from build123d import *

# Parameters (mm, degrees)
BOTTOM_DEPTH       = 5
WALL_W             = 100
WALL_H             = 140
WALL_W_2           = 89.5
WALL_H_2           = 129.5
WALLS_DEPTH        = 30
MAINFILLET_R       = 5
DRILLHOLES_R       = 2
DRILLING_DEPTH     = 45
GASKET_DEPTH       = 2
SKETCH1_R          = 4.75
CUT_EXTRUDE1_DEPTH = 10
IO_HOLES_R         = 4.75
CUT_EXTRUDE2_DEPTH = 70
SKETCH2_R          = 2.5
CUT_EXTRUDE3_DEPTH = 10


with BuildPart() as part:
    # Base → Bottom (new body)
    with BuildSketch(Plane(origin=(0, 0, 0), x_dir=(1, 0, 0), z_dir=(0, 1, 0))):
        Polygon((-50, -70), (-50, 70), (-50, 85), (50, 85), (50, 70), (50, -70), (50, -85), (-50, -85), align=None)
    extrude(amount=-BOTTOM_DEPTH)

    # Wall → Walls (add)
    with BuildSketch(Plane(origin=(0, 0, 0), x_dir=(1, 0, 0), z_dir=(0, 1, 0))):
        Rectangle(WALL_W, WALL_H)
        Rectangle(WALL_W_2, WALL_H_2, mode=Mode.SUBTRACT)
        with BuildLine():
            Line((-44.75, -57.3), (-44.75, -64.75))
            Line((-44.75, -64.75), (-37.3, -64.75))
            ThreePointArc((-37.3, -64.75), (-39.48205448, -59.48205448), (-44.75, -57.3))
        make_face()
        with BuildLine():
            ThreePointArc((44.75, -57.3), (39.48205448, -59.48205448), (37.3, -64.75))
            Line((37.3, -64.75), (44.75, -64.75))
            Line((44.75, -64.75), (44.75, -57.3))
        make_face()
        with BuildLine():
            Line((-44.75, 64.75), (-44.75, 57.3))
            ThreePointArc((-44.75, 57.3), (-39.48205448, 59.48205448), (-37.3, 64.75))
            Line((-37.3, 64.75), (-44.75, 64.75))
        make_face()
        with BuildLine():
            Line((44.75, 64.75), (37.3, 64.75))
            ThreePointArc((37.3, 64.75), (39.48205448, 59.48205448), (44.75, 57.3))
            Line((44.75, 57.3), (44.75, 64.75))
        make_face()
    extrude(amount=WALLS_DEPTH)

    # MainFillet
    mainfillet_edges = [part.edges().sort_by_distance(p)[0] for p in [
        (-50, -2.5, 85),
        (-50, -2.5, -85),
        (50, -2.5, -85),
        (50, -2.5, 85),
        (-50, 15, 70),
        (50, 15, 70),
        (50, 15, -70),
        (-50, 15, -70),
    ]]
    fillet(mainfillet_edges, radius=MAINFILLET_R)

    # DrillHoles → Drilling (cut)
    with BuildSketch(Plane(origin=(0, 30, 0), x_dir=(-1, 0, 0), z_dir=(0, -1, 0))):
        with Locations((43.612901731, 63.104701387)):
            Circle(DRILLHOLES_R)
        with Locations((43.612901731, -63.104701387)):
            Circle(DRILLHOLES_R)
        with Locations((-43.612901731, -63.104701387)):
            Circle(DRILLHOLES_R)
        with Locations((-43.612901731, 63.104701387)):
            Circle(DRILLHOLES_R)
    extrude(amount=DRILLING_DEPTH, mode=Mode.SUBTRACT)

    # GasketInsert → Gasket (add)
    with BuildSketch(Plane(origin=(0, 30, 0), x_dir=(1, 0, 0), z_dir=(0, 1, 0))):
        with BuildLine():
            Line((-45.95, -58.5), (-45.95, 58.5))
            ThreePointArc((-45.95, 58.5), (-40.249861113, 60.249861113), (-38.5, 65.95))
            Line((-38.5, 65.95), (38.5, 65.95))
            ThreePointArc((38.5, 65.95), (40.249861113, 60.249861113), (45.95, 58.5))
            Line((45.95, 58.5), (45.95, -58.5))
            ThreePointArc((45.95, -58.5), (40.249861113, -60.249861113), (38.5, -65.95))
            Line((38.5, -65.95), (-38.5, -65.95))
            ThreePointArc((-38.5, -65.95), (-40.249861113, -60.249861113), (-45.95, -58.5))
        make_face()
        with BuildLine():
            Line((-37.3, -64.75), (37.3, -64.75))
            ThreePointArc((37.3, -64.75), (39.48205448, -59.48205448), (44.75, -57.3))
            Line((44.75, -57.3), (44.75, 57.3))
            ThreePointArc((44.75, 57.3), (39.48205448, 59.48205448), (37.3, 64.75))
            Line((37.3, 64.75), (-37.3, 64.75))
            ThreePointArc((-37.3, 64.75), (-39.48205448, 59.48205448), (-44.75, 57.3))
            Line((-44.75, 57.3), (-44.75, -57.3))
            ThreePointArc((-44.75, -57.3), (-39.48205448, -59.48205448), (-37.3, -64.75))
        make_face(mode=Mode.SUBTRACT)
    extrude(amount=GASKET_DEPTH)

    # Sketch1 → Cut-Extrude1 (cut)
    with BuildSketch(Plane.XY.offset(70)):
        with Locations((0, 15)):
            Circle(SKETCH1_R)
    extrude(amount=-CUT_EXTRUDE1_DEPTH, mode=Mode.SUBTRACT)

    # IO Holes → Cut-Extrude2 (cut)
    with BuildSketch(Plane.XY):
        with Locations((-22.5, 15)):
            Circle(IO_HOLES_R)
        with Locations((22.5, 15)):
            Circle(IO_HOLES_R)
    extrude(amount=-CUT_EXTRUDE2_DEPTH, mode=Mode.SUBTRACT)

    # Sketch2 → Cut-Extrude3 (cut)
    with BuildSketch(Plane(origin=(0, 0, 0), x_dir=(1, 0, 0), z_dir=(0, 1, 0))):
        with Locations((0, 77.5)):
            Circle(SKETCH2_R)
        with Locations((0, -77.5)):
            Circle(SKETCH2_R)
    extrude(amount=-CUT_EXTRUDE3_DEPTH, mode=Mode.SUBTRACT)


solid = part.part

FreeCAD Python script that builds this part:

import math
import FreeCAD as App
import Part
import Sketcher

V = App.Vector


def edges_at(feature, points):
    """Names of the edges that pass closest to the given points."""
    edges = feature.Shape.Edges
    near = lambda p: min(range(len(edges)), key=lambda i: edges[i].distToShape(Part.Vertex(*p))[0])
    return sorted({f"Edge{near(p) + 1}" for p in points})

doc = App.newDocument("Part")
body = doc.addObject("PartDesign::Body", "Body")

# Sketch on XZ plane
sketch1 = body.newObject("Sketcher::SketchObject", "Sketch")
sketch1.AttachmentSupport = (doc.getObject("XZ_Plane"), [""])
sketch1.MapMode = "FlatFace"
sketch1.addGeometry(Part.LineSegment(V(-50, -85, 0), V(-50, 85, 0)), False)
sketch1.addGeometry(Part.LineSegment(V(-50, 85, 0), V(50, 85, 0)), False)
sketch1.addGeometry(Part.LineSegment(V(50, 85, 0), V(50, -85, 0)), False)
sketch1.addGeometry(Part.LineSegment(V(50, -85, 0), V(-50, -85, 0)), False)
sketch1.addConstraint(Sketcher.Constraint("Coincident", 0, 2, 1, 1))
sketch1.addConstraint(Sketcher.Constraint("Coincident", 1, 2, 2, 1))
sketch1.addConstraint(Sketcher.Constraint("Coincident", 2, 2, 3, 1))
sketch1.addConstraint(Sketcher.Constraint("Coincident", 3, 2, 0, 1))
sketch1.addConstraint(Sketcher.Constraint("Vertical", 0))
sketch1.addConstraint(Sketcher.Constraint("Horizontal", 1))
sketch1.addConstraint(Sketcher.Constraint("Vertical", 2))
sketch1.addConstraint(Sketcher.Constraint("Horizontal", 3))
sketch1.addConstraint(Sketcher.Constraint("Symmetric", 0, 2, 2, 2, -1, 1))
sketch1.addConstraint(Sketcher.Constraint("DistanceX", 1, 1, 1, 2, 100.0))
sketch1.addConstraint(Sketcher.Constraint("DistanceY", 0, 1, 0, 2, 170.0))
pad1 = body.newObject("PartDesign::Pad", "Pad")
pad1.Profile = sketch1
pad1.Length = 5

# Sketch on XZ plane
sketch2 = body.newObject("Sketcher::SketchObject", "Sketch001")
sketch2.AttachmentSupport = (doc.getObject("XZ_Plane"), [""])
sketch2.MapMode = "FlatFace"
sketch2.addGeometry(Part.LineSegment(V(-50, -70, 0), V(-50, 70, 0)), False)
sketch2.addGeometry(Part.LineSegment(V(-50, 70, 0), V(50, 70, 0)), False)
sketch2.addGeometry(Part.LineSegment(V(50, 70, 0), V(50, -70, 0)), False)
sketch2.addGeometry(Part.LineSegment(V(50, -70, 0), V(-50, -70, 0)), False)
sketch2.addGeometry(Part.LineSegment(V(37, 65, 0), V(-37, 65, 0)), False)
sketch2.addGeometry(Part.ArcOfCircle(Part.Circle(V(-45, 65, 0), V(0, 0, 1), 7), math.radians(-90), math.radians(0)), False)
sketch2.addGeometry(Part.LineSegment(V(-45, 57, 0), V(-45, -57, 0)), False)
sketch2.addGeometry(Part.ArcOfCircle(Part.Circle(V(-45, -65, 0), V(0, 0, 1), 7), math.radians(0), math.radians(90)), False)
sketch2.addGeometry(Part.LineSegment(V(-37, -65, 0), V(37, -65, 0)), False)
sketch2.addGeometry(Part.ArcOfCircle(Part.Circle(V(45, -65, 0), V(0, 0, 1), 7), math.radians(90), math.radians(180)), False)
sketch2.addGeometry(Part.LineSegment(V(45, -57, 0), V(45, 57, 0)), False)
sketch2.addGeometry(Part.ArcOfCircle(Part.Circle(V(45, 65, 0), V(0, 0, 1), 7), math.radians(180), math.radians(270)), False)
sketch2.addConstraint(Sketcher.Constraint("Coincident", 0, 2, 1, 1))
sketch2.addConstraint(Sketcher.Constraint("Coincident", 1, 2, 2, 1))
sketch2.addConstraint(Sketcher.Constraint("Coincident", 2, 2, 3, 1))
sketch2.addConstraint(Sketcher.Constraint("Coincident", 3, 2, 0, 1))
sketch2.addConstraint(Sketcher.Constraint("Coincident", 4, 2, 5, 2))
sketch2.addConstraint(Sketcher.Constraint("Coincident", 5, 1, 6, 1))
sketch2.addConstraint(Sketcher.Constraint("Coincident", 6, 2, 7, 2))
sketch2.addConstraint(Sketcher.Constraint("Coincident", 7, 1, 8, 1))
sketch2.addConstraint(Sketcher.Constraint("Coincident", 8, 2, 9, 2))
sketch2.addConstraint(Sketcher.Constraint("Coincident", 9, 1, 10, 1))
sketch2.addConstraint(Sketcher.Constraint("Coincident", 10, 2, 11, 2))
sketch2.addConstraint(Sketcher.Constraint("Coincident", 11, 1, 4, 1))
sketch2.addConstraint(Sketcher.Constraint("Vertical", 0))
sketch2.addConstraint(Sketcher.Constraint("Horizontal", 1))
sketch2.addConstraint(Sketcher.Constraint("Vertical", 2))
sketch2.addConstraint(Sketcher.Constraint("Horizontal", 3))
sketch2.addConstraint(Sketcher.Constraint("Horizontal", 4))
sketch2.addConstraint(Sketcher.Constraint("Vertical", 6))
sketch2.addConstraint(Sketcher.Constraint("Horizontal", 8))
sketch2.addConstraint(Sketcher.Constraint("Vertical", 10))
sketch2.addConstraint(Sketcher.Constraint("Equal", 5, 7))
sketch2.addConstraint(Sketcher.Constraint("Equal", 7, 9))
sketch2.addConstraint(Sketcher.Constraint("Equal", 9, 11))
sketch2.addConstraint(Sketcher.Constraint("Symmetric", 5, 3, 9, 3, -1, 1))
sketch2.addConstraint(Sketcher.Constraint("Symmetric", 7, 3, 11, 3, -1, 1))
sketch2.addConstraint(Sketcher.Constraint("Symmetric", 0, 2, 2, 2, -1, 1))
sketch2.addConstraint(Sketcher.Constraint("Symmetric", 7, 3, 9, 3, -2))
sketch2.addConstraint(Sketcher.Constraint("Horizontal", 11, 3, 4, 2))
sketch2.addConstraint(Sketcher.Constraint("Horizontal", 9, 3, 7, 1))
sketch2.addConstraint(Sketcher.Constraint("Vertical", 7, 3, 5, 1))
sketch2.addConstraint(Sketcher.Constraint("Vertical", 11, 3, 9, 1))
sketch2.addConstraint(Sketcher.Constraint("DistanceX", 1, 1, 1, 2, 100.0))
sketch2.addConstraint(Sketcher.Constraint("DistanceY", 0, 1, 0, 2, 140.0))
sketch2.addConstraint(Sketcher.Constraint("Radius", 5, 7.45))
sketch2.addConstraint(Sketcher.Constraint("DistanceX", 4, 2, 4, 1, 74.6))
sketch2.addConstraint(Sketcher.Constraint("DistanceY", 6, 2, 6, 1, 114.6))
pad2 = body.newObject("PartDesign::Pad", "Pad001")
pad2.Profile = sketch2
pad2.Length = 30
pad2.Reversed = True
doc.recompute()

fillet = body.newObject("PartDesign::Fillet", "Fillet")
fillet.Base = (pad2, edges_at(pad2, [
    (-50, -2.5, 85),
    (-50, -2.5, -85),
    (50, -2.5, -85),
    (50, -2.5, 85),
    (-50, 15, 70),
    (50, 15, 70),
    (50, 15, -70),
    (-50, 15, -70),
]))
fillet.Radius = 5

# Sketch on XZ plane
sketch3 = body.newObject("Sketcher::SketchObject", "Sketch002")
sketch3.AttachmentSupport = (doc.getObject("XZ_Plane"), [""])
sketch3.MapMode = "FlatFace"
sketch3.AttachmentOffset = App.Placement(V(0, 0, -30), App.Rotation())
sketch3.addGeometry(Part.Circle(V(-43.6, -63.1, 0), V(0, 0, 1), 2), False)
sketch3.addGeometry(Part.Circle(V(-43.6, 63.1, 0), V(0, 0, 1), 2), False)
sketch3.addGeometry(Part.Circle(V(43.6, 63.1, 0), V(0, 0, 1), 2), False)
sketch3.addGeometry(Part.Circle(V(43.6, -63.1, 0), V(0, 0, 1), 2), False)
sketch3.addConstraint(Sketcher.Constraint("Equal", 0, 1))
sketch3.addConstraint(Sketcher.Constraint("Equal", 1, 2))
sketch3.addConstraint(Sketcher.Constraint("Equal", 2, 3))
sketch3.addConstraint(Sketcher.Constraint("Symmetric", 0, 3, 2, 3, -1, 1))
sketch3.addConstraint(Sketcher.Constraint("Symmetric", 1, 3, 3, 3, -1, 1))
sketch3.addConstraint(Sketcher.Constraint("Symmetric", 1, 3, 2, 3, -2))
sketch3.addConstraint(Sketcher.Constraint("Diameter", 0, 4.0))
sketch3.addConstraint(Sketcher.Constraint("DistanceX", 0, 3, -1, 1, 43.612902))
sketch3.addConstraint(Sketcher.Constraint("DistanceY", 0, 3, -1, 1, 63.104701))
pocket1 = body.newObject("PartDesign::Pocket", "Pocket")
pocket1.Profile = sketch3
pocket1.Length = 45
pocket1.Reversed = True

# Sketch on XZ plane
sketch4 = body.newObject("Sketcher::SketchObject", "Sketch003")
sketch4.AttachmentSupport = (doc.getObject("XZ_Plane"), [""])
sketch4.MapMode = "FlatFace"
sketch4.AttachmentOffset = App.Placement(V(0, 0, -30), App.Rotation())
sketch4.addGeometry(Part.LineSegment(V(-46, -58, 0), V(-46, 58, 0)), False)
sketch4.addGeometry(Part.ArcOfCircle(Part.Circle(V(-45, 65, 0), V(0, 0, 1), 6), math.radians(-101), math.radians(11)), False)
sketch4.addGeometry(Part.LineSegment(V(-38, 66, 0), V(38, 66, 0)), False)
sketch4.addGeometry(Part.ArcOfCircle(Part.Circle(V(45, 65, 0), V(0, 0, 1), 6), math.radians(169), math.radians(281)), False)
sketch4.addGeometry(Part.LineSegment(V(46, 58, 0), V(46, -58, 0)), False)
sketch4.addGeometry(Part.ArcOfCircle(Part.Circle(V(45, -65, 0), V(0, 0, 1), 6), math.radians(79), math.radians(191)), False)
sketch4.addGeometry(Part.LineSegment(V(38, -66, 0), V(-38, -66, 0)), False)
sketch4.addGeometry(Part.ArcOfCircle(Part.Circle(V(-45, -65, 0), V(0, 0, 1), 6), math.radians(-11), math.radians(101)), False)
sketch4.addGeometry(Part.ArcOfCircle(Part.Circle(V(-45, 65, 0), V(0, 0, 1), 7), math.radians(-90), math.radians(0)), False)
sketch4.addGeometry(Part.LineSegment(V(-45, 57, 0), V(-45, -57, 0)), False)
sketch4.addGeometry(Part.ArcOfCircle(Part.Circle(V(-45, -65, 0), V(0, 0, 1), 7), math.radians(0), math.radians(90)), False)
sketch4.addGeometry(Part.LineSegment(V(-37, -65, 0), V(37, -65, 0)), False)
sketch4.addGeometry(Part.ArcOfCircle(Part.Circle(V(45, -65, 0), V(0, 0, 1), 7), math.radians(90), math.radians(180)), False)
sketch4.addGeometry(Part.LineSegment(V(45, -57, 0), V(45, 57, 0)), False)
sketch4.addGeometry(Part.ArcOfCircle(Part.Circle(V(45, 65, 0), V(0, 0, 1), 7), math.radians(180), math.radians(270)), False)
sketch4.addGeometry(Part.LineSegment(V(37, 65, 0), V(-37, 65, 0)), False)
sketch4.addConstraint(Sketcher.Constraint("Coincident", 0, 2, 1, 1))
sketch4.addConstraint(Sketcher.Constraint("Coincident", 1, 2, 2, 1))
sketch4.addConstraint(Sketcher.Constraint("Coincident", 2, 2, 3, 1))
sketch4.addConstraint(Sketcher.Constraint("Coincident", 3, 2, 4, 1))
sketch4.addConstraint(Sketcher.Constraint("Coincident", 4, 2, 5, 1))
sketch4.addConstraint(Sketcher.Constraint("Coincident", 5, 2, 6, 1))
sketch4.addConstraint(Sketcher.Constraint("Coincident", 6, 2, 7, 1))
sketch4.addConstraint(Sketcher.Constraint("Coincident", 7, 2, 0, 1))
sketch4.addConstraint(Sketcher.Constraint("Coincident", 8, 1, 9, 1))
sketch4.addConstraint(Sketcher.Constraint("Coincident", 9, 2, 10, 2))
sketch4.addConstraint(Sketcher.Constraint("Coincident", 10, 1, 11, 1))
sketch4.addConstraint(Sketcher.Constraint("Coincident", 11, 2, 12, 2))
sketch4.addConstraint(Sketcher.Constraint("Coincident", 12, 1, 13, 1))
sketch4.addConstraint(Sketcher.Constraint("Coincident", 13, 2, 14, 2))
sketch4.addConstraint(Sketcher.Constraint("Coincident", 14, 1, 15, 1))
sketch4.addConstraint(Sketcher.Constraint("Coincident", 15, 2, 8, 2))
sketch4.addConstraint(Sketcher.Constraint("Vertical", 0))
sketch4.addConstraint(Sketcher.Constraint("Horizontal", 2))
sketch4.addConstraint(Sketcher.Constraint("Vertical", 4))
sketch4.addConstraint(Sketcher.Constraint("Horizontal", 6))
sketch4.addConstraint(Sketcher.Constraint("Vertical", 9))
sketch4.addConstraint(Sketcher.Constraint("Horizontal", 11))
sketch4.addConstraint(Sketcher.Constraint("Vertical", 13))
sketch4.addConstraint(Sketcher.Constraint("Horizontal", 15))
sketch4.addConstraint(Sketcher.Constraint("Coincident", 8, 3, 1, 3))
sketch4.addConstraint(Sketcher.Constraint("Coincident", 10, 3, 7, 3))
sketch4.addConstraint(Sketcher.Constraint("Coincident", 12, 3, 5, 3))
sketch4.addConstraint(Sketcher.Constraint("Coincident", 14, 3, 3, 3))
sketch4.addConstraint(Sketcher.Constraint("Equal", 1, 3))
sketch4.addConstraint(Sketcher.Constraint("Equal", 3, 5))
sketch4.addConstraint(Sketcher.Constraint("Equal", 5, 7))
sketch4.addConstraint(Sketcher.Constraint("Equal", 8, 10))
sketch4.addConstraint(Sketcher.Constraint("Equal", 10, 12))
sketch4.addConstraint(Sketcher.Constraint("Equal", 12, 14))
sketch4.addConstraint(Sketcher.Constraint("Symmetric", 1, 3, 5, 3, -1, 1))
sketch4.addConstraint(Sketcher.Constraint("Symmetric", 3, 3, 7, 3, -1, 1))
sketch4.addConstraint(Sketcher.Constraint("Symmetric", 1, 3, 3, 3, -2))
sketch4.addConstraint(Sketcher.Constraint("Horizontal", 0, 2, 3, 2))
sketch4.addConstraint(Sketcher.Constraint("Horizontal", 12, 3, 10, 1))
sketch4.addConstraint(Sketcher.Constraint("Horizontal", 8, 3, 14, 1))
sketch4.addConstraint(Sketcher.Constraint("Vertical", 2, 2, 5, 2))
sketch4.addConstraint(Sketcher.Constraint("Vertical", 10, 3, 8, 1))
sketch4.addConstraint(Sketcher.Constraint("Vertical", 14, 3, 12, 1))
sketch4.addConstraint(Sketcher.Constraint("DistanceX", 2, 1, 2, 2, 77.0))
sketch4.addConstraint(Sketcher.Constraint("DistanceY", 0, 1, 0, 2, 117.0))
sketch4.addConstraint(Sketcher.Constraint("Radius", 8, 7.45))
sketch4.addConstraint(Sketcher.Constraint("DistanceX", 11, 1, 11, 2, 74.6))
sketch4.addConstraint(Sketcher.Constraint("DistanceY", 9, 2, 9, 1, 114.6))
sketch4.addConstraint(Sketcher.Constraint("DistanceX", 0, 2, 1, 3, 1.2))
pad3 = body.newObject("PartDesign::Pad", "Pad002")
pad3.Profile = sketch4
pad3.Length = 2
pad3.Reversed = True

# Sketch on XY plane
sketch5 = body.newObject("Sketcher::SketchObject", "Sketch004")
sketch5.AttachmentSupport = (doc.getObject("XY_Plane"), [""])
sketch5.MapMode = "FlatFace"
sketch5.AttachmentOffset = App.Placement(V(0, 0, 70), App.Rotation())
sketch5.addGeometry(Part.Circle(V(0, 15, 0), V(0, 0, 1), 4.8), False)
sketch5.addConstraint(Sketcher.Constraint("PointOnObject", 0, 3, -2))
sketch5.addConstraint(Sketcher.Constraint("Diameter", 0, 9.5))
sketch5.addConstraint(Sketcher.Constraint("DistanceY", -1, 1, 0, 3, 15.0))
pocket2 = body.newObject("PartDesign::Pocket", "Pocket001")
pocket2.Profile = sketch5
pocket2.Length = 10

# Sketch on XY plane
sketch6 = body.newObject("Sketcher::SketchObject", "Sketch005")
sketch6.AttachmentSupport = (doc.getObject("XY_Plane"), [""])
sketch6.MapMode = "FlatFace"
sketch6.addGeometry(Part.Circle(V(-22.5, 15, 0), V(0, 0, 1), 4.8), False)
sketch6.addGeometry(Part.Circle(V(22.5, 15, 0), V(0, 0, 1), 4.8), False)
sketch6.addConstraint(Sketcher.Constraint("Equal", 0, 1))
sketch6.addConstraint(Sketcher.Constraint("Symmetric", 0, 3, 1, 3, -2))
sketch6.addConstraint(Sketcher.Constraint("Diameter", 0, 9.5))
sketch6.addConstraint(Sketcher.Constraint("DistanceY", -1, 1, 0, 3, 15.0))
sketch6.addConstraint(Sketcher.Constraint("DistanceX", 0, 3, 1, 3, 45.0))
pocket3 = body.newObject("PartDesign::Pocket", "Pocket002")
pocket3.Profile = sketch6
pocket3.Length = 70

# Sketch on XZ plane
sketch7 = body.newObject("Sketcher::SketchObject", "Sketch006")
sketch7.AttachmentSupport = (doc.getObject("XZ_Plane"), [""])
sketch7.MapMode = "FlatFace"
sketch7.addGeometry(Part.Circle(V(0, -77.5, 0), V(0, 0, 1), 2.5), False)
sketch7.addGeometry(Part.Circle(V(0, 77.5, 0), V(0, 0, 1), 2.5), False)
sketch7.addConstraint(Sketcher.Constraint("Equal", 0, 1))
sketch7.addConstraint(Sketcher.Constraint("Symmetric", 0, 3, 1, 3, -1, 1))
sketch7.addConstraint(Sketcher.Constraint("PointOnObject", 0, 3, -2))
sketch7.addConstraint(Sketcher.Constraint("Diameter", 0, 5.0))
sketch7.addConstraint(Sketcher.Constraint("DistanceY", 0, 3, 1, 3, 155.0))
pocket4 = body.newObject("PartDesign::Pocket", "Pocket003")
pocket4.Profile = sketch7
pocket4.Length = 10
pocket4.Reversed = True

doc.recompute()
